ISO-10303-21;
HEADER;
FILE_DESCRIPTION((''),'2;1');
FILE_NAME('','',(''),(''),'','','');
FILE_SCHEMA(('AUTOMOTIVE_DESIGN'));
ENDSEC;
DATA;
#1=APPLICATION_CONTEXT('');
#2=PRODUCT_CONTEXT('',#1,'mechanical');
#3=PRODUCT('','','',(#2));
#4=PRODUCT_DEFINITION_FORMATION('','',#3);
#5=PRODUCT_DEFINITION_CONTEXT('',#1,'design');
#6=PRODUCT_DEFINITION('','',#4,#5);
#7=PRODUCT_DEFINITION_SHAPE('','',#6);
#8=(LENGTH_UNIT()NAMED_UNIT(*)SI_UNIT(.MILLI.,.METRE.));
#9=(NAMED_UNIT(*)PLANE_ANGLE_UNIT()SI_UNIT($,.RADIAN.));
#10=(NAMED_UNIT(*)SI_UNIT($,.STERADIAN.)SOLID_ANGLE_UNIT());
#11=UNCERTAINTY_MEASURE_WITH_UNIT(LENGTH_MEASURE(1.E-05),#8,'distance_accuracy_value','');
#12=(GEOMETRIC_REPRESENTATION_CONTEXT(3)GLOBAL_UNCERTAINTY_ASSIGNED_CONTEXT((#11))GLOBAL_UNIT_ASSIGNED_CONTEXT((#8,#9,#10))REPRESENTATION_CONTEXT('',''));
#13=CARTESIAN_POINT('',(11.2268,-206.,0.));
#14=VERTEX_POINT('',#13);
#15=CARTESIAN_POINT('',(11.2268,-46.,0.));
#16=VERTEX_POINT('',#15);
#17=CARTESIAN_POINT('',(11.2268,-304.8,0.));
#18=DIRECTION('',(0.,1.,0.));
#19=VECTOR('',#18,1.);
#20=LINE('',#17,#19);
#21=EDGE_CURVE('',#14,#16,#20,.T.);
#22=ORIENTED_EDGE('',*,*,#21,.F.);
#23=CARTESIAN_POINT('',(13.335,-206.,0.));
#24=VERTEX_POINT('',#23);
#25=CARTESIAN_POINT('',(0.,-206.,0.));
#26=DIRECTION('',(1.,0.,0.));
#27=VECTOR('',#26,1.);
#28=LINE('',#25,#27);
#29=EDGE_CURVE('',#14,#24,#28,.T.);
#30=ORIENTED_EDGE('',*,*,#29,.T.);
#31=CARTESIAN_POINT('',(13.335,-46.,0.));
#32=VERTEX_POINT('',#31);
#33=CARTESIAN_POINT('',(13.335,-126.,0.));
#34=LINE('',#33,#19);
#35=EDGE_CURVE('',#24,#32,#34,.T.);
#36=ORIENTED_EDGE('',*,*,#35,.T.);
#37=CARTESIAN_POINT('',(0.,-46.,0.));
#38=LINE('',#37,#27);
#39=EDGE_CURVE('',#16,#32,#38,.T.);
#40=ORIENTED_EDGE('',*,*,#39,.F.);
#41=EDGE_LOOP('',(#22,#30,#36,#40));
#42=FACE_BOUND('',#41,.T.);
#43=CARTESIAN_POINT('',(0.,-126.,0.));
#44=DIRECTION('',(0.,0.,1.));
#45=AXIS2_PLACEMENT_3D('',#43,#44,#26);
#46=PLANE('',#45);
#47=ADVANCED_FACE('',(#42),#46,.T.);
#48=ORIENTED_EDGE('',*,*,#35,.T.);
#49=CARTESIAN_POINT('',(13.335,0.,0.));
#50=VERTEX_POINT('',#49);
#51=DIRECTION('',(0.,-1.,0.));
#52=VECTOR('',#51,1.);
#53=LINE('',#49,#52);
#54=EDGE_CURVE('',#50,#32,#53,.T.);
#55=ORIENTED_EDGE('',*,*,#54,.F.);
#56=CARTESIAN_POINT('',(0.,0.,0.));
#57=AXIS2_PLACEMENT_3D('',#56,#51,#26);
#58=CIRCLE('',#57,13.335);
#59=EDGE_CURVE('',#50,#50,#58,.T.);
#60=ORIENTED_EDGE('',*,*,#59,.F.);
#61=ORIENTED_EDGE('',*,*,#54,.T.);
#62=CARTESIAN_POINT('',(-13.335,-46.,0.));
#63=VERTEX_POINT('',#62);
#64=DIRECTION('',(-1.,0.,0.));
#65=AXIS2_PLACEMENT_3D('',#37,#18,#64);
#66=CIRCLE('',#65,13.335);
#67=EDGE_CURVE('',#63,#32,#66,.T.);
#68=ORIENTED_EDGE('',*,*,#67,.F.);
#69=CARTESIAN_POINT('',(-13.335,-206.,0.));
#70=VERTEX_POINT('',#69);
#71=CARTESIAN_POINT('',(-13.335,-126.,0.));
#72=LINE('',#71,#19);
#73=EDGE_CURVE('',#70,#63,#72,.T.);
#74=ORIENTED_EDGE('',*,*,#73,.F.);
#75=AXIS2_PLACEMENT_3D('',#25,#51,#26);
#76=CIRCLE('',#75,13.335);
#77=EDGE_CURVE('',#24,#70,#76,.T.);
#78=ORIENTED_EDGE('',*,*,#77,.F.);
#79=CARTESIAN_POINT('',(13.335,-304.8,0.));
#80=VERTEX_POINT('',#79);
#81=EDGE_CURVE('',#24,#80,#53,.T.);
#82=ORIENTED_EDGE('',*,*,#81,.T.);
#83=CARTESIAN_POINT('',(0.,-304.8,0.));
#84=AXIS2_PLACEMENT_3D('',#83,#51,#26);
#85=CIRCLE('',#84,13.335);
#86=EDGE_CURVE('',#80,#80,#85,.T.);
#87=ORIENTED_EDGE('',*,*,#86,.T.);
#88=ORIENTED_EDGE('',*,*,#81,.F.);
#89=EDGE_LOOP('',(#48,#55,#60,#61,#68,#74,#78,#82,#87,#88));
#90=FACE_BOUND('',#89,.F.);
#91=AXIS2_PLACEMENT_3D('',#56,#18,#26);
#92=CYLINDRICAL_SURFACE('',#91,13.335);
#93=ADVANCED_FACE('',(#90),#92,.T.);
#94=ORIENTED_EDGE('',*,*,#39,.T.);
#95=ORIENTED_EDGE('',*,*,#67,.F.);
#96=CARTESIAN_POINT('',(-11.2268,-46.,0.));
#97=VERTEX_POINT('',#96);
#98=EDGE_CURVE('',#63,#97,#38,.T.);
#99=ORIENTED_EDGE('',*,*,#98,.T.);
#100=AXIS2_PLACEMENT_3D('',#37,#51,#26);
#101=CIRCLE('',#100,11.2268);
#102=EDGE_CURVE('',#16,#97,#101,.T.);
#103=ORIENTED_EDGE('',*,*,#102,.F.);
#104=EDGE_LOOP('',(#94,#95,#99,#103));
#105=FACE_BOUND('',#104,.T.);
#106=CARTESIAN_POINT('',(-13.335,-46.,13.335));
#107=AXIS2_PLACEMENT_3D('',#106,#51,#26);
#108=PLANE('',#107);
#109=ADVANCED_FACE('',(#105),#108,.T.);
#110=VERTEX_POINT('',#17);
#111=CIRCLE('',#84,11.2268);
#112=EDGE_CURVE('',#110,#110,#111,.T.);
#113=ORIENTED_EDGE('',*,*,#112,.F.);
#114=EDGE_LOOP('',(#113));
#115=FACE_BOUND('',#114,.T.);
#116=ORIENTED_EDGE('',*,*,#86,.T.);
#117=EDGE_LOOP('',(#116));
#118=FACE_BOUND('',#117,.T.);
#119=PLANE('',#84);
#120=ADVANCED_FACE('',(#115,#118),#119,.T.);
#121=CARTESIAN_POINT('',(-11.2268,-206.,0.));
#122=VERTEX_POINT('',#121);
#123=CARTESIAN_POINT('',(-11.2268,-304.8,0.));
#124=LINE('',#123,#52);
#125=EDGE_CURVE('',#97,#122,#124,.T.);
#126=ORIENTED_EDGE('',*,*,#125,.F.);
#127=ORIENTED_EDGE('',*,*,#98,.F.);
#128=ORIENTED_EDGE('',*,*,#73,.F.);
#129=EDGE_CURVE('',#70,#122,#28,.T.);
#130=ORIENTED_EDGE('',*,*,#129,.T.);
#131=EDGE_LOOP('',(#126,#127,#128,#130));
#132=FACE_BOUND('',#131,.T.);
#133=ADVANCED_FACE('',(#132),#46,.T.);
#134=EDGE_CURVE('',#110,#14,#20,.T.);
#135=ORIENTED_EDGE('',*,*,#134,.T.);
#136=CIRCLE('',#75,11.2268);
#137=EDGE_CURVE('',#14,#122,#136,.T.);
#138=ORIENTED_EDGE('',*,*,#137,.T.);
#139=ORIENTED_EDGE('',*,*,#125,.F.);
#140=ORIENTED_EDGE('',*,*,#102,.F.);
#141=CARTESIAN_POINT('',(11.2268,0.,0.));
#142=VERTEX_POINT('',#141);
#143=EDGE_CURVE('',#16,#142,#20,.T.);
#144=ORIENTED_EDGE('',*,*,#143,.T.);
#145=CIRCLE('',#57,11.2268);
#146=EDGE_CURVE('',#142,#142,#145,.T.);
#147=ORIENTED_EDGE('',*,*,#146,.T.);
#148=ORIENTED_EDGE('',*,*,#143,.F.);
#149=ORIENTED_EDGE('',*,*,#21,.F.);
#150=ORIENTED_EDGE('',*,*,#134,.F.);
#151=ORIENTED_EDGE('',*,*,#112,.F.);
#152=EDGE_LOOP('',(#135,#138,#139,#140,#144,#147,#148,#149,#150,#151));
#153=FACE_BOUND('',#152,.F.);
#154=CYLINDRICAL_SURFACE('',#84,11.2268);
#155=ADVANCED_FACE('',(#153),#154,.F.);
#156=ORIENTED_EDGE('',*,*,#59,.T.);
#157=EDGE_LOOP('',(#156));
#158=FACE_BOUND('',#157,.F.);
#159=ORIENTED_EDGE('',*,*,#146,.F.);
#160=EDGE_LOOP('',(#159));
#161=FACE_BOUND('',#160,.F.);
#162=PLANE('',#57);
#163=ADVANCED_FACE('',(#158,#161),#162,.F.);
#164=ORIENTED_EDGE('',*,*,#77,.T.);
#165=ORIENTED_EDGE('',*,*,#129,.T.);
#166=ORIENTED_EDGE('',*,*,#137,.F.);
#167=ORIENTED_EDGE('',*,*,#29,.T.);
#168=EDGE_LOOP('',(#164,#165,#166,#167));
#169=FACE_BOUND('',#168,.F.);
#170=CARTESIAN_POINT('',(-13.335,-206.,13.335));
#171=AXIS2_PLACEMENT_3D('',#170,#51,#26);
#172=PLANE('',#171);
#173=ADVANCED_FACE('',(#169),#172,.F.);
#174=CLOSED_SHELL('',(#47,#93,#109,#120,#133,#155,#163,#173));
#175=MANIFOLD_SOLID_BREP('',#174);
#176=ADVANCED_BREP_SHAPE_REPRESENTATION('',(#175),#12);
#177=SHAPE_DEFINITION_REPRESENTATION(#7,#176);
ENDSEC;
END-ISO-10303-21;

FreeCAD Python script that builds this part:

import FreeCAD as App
import Part
import Sketcher
from FreeCAD import Vector
Q = App.Units.Quantity


def add_polygon(sketch, points):
    """Adds a closed chain of lines whose ends are joined by coincident constraints."""
    first, n = sketch.GeometryCount, len(points)
    for a, b in zip(points, points[1:] + points[:1]):
        sketch.addGeometry(Part.LineSegment(App.Vector(*a, 0), App.Vector(*b, 0)), False)
    for i in range(n):
        sketch.addConstraint(Sketcher.Constraint("Coincident", first + i, 2, first + (i + 1) % n, 1))

doc = App.newDocument("Part")
params = doc.addObject("Spreadsheet::Sheet", "Params")
for row, (alias, value) in enumerate([
    ("sketch1_diameter", "1.05 in"),
    ("pad1_length", "12 in"),
    ("sketch2_diameter", "0.884 in"),
    ("sketch3_width", "1.05 in"),
    ("pocket2_length", "0.525 in"),
], start=1):
    params.set(f"A{row}", alias)
    params.set(f"B{row}", "=" + value)
    params.setAlias(f"B{row}", alias)

body = doc.addObject("PartDesign::Body", "Body")

# Sketch on XZ plane
sketch1 = doc.addObject("Sketcher::SketchObject", "Sketch")
body.addObject(sketch1)
sketch1.AttachmentSupport = (doc.XZ_Plane, [""])
sketch1.MapMode = "FlatFace"
sketch1.addGeometry(Part.Circle(Vector(0, 0, 0), Vector(0, 0, 1), 13), False)
sketch1.addConstraint([
    Sketcher.Constraint("Coincident", 0, 3, -1, 1),
    Sketcher.Constraint("Diameter", 0, Q("1.05 in")),
])
sketch1.setExpression("Constraints[1]", "Params.sketch1_diameter")
pad1 = doc.addObject("PartDesign::Pad", "Pad")
body.addObject(pad1)
pad1.Profile = sketch1
pad1.setExpression("Length", "Params.pad1_length")

# Sketch on XZ plane
sketch2 = doc.addObject("Sketcher::SketchObject", "Sketch001")
body.addObject(sketch2)
sketch2.AttachmentSupport = (doc.XZ_Plane, [""])
sketch2.MapMode = "FlatFace"
sketch2.AttachmentOffset = App.Placement(Vector(0, 0, 12 * 25.4), App.Rotation())
sketch2.addGeometry(Part.Circle(Vector(0, 0, 0), Vector(0, 0, 1), 11), False)
sketch2.addConstraint([
    Sketcher.Constraint("Coincident", 0, 3, -1, 1),
    Sketcher.Constraint("Diameter", 0, Q("0.884 in")),
])
sketch2.setExpression("Constraints[1]", "Params.sketch2_diameter")
pocket1 = doc.addObject("PartDesign::Pocket", "Pocket")
body.addObject(pocket1)
pocket1.Profile = sketch2
pocket1.Type = "ThroughAll"

# Sketch on XY plane
sketch3 = doc.addObject("Sketcher::SketchObject", "Sketch002")
body.addObject(sketch3)
sketch3.AttachmentSupport = (doc.XY_Plane, [""])
sketch3.MapMode = "FlatFace"
sketch3.AttachmentOffset = App.Placement(Vector(0, 0, 0.525 * 25.4), App.Rotation())
add_polygon(sketch3, [(-13, -46), (-13, -206), (13, -206), (13, -46)])  # lines 0-3
sketch3.addConstraint([
    Sketcher.Constraint("Vertical", 0),
    Sketcher.Constraint("Horizontal", 1),
    Sketcher.Constraint("Vertical", 2),
    Sketcher.Constraint("Horizontal", 3),
    Sketcher.Constraint("DistanceX", 1, 1, 1, 2, Q("1.05 in")),
    Sketcher.Constraint("DistanceX", 0, 2, -1, 1, Q("0.525 in")),
    Sketcher.Constraint("DistanceY", 0, 2, 0, 1, Q("160 mm")),
    Sketcher.Constraint("DistanceY", 0, 2, -1, 1, Q("206 mm")),
])
sketch3.setExpression("Constraints[8]", "Params.sketch3_width")
pocket2 = doc.addObject("PartDesign::Pocket", "Pocket001")
body.addObject(pocket2)
pocket2.Profile = sketch3
pocket2.setExpression("Length", "Params.pocket2_length")

doc.recompute()
